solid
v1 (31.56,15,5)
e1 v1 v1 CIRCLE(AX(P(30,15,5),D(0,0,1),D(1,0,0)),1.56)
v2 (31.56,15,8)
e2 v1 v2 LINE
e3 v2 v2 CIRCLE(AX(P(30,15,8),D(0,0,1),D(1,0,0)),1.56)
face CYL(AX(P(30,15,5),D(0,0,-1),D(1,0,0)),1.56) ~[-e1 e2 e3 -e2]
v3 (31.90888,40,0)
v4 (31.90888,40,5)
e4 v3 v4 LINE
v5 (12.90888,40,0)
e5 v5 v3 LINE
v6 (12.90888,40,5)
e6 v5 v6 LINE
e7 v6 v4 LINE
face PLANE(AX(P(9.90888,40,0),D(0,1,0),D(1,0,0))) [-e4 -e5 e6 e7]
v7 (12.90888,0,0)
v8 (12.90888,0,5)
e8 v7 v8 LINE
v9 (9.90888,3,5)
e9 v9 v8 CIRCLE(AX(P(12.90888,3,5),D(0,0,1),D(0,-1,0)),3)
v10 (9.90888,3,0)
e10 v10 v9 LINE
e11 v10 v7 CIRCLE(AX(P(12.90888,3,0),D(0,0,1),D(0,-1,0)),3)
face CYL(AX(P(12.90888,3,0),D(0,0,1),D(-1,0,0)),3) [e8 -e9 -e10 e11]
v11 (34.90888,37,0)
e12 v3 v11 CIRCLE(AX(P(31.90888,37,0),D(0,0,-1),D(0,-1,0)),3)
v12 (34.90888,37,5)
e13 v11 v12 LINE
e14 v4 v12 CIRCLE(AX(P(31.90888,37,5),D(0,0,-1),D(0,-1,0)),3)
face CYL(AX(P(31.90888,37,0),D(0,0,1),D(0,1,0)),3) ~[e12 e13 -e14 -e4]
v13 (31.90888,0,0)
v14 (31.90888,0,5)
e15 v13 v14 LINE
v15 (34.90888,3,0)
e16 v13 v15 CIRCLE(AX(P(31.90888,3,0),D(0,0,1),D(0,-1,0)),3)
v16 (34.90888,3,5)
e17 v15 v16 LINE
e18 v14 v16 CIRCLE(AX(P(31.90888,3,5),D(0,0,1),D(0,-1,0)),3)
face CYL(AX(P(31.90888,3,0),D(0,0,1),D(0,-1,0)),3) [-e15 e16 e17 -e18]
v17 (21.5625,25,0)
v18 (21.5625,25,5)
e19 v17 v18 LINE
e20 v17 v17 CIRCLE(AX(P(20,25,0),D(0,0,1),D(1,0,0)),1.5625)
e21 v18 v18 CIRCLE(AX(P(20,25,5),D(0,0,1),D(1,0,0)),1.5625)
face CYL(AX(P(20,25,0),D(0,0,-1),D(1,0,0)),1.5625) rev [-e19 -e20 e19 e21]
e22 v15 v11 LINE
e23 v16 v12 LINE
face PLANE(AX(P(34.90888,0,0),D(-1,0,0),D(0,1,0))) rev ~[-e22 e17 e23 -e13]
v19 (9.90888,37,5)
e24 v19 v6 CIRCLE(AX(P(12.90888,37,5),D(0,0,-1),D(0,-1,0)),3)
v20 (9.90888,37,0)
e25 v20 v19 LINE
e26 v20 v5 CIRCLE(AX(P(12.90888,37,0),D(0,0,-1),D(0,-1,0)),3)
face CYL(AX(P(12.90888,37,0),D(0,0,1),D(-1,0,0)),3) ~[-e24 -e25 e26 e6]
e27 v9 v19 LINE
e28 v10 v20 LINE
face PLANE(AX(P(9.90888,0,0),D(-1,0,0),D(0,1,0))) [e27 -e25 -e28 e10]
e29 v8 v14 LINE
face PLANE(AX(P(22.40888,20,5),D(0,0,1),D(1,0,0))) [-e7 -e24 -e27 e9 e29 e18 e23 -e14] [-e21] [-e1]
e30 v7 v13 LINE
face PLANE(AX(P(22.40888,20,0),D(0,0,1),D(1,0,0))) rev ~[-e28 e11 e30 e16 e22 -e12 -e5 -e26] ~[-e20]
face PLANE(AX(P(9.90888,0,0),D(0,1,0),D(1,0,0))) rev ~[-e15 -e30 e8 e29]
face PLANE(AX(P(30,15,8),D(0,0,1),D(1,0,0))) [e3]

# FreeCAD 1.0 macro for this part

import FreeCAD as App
import Part
import Sketcher

V = App.Vector


def edges_at(feature, points):
    """Names of the edges that pass closest to the given points."""
    edges = feature.Shape.Edges
    near = lambda p: min(range(len(edges)), key=lambda i: edges[i].distToShape(Part.Vertex(*p))[0])
    return sorted({f"Edge{near(p) + 1}" for p in points})


def add_polygon(sketch, points):
    """Adds a closed chain of lines whose ends are joined by coincident constraints."""
    first, n = sketch.GeometryCount, len(points)
    for a, b in zip(points, points[1:] + points[:1]):
        sketch.addGeometry(Part.LineSegment(App.Vector(*a, 0), App.Vector(*b, 0)), False)
    for i in range(n):
        sketch.addConstraint(Sketcher.Constraint("Coincident", first + i, 2, first + (i + 1) % n, 1))

doc = App.newDocument("Part")
params = doc.addObject("Spreadsheet::Sheet", "Params")
for row, (alias, value) in enumerate([
    ("sketch1_width", "25 mm"),
    ("sketch1_height", "40 mm"),
    ("pad1_length", "5 mm"),
    ("fillet_radius", "3 mm"),
    ("sketch2_diameter", "3.12 mm"),
    ("pad2_length", "3 mm"),
], start=1):
    params.set(f"A{row}", alias)
    params.set(f"B{row}", "=" + value)
    params.setAlias(f"B{row}", alias)

body = doc.addObject("PartDesign::Body", "Body")

# Sketch on XY plane
sketch1 = body.newObject("Sketcher::SketchObject", "Sketch")
sketch1.AttachmentSupport = (doc.getObject("XY_Plane"), [""])
sketch1.MapMode = "FlatFace"
add_polygon(sketch1, [(9.9, 40), (9.9, 0), (34.9, 0), (34.9, 40)])  # lines 0-3
sketch1.addGeometry(Part.Circle(V(20, 25, 0), V(0, 0, 1), 1.6), False)  # 4
sketch1.addConstraint(Sketcher.Constraint("Vertical", 0))
sketch1.addConstraint(Sketcher.Constraint("Horizontal", 1))
sketch1.addConstraint(Sketcher.Constraint("Vertical", 2))
sketch1.addConstraint(Sketcher.Constraint("Horizontal", 3))
sketch1.addConstraint(Sketcher.Constraint("PointOnObject", 0, 2, -1))
sketch1.addConstraint(Sketcher.Constraint("DistanceX", 1, 1, 1, 2, 25.0))
sketch1.addConstraint(Sketcher.Constraint("DistanceY", 0, 2, 0, 1, 40.0))
sketch1.addConstraint(Sketcher.Constraint("Diameter", 4, 3.125))
sketch1.addConstraint(Sketcher.Constraint("DistanceX", -1, 1, 4, 3, 20.0))
sketch1.addConstraint(Sketcher.Constraint("DistanceY", -1, 1, 4, 3, 25.0))
sketch1.addConstraint(Sketcher.Constraint("DistanceX", -1, 1, 0, 2, 9.90888))
sketch1.setExpression("Constraints[9]", "Params.sketch1_width")
sketch1.setExpression("Constraints[10]", "Params.sketch1_height")
pad1 = body.newObject("PartDesign::Pad", "Pad")
pad1.Profile = sketch1
pad1.setExpression("Length", "Params.pad1_length")
doc.recompute()

fillet = body.newObject("PartDesign::Fillet", "Fillet")
fillet.Base = (pad1, edges_at(pad1, [
    (9.909, 0, 2.5),
    (34.909, 0, 2.5),
    (34.909, 40, 2.5),
    (9.909, 40, 2.5),
]))
fillet.setExpression("Radius", "Params.fillet_radius")

# Sketch on XY plane
sketch2 = body.newObject("Sketcher::SketchObject", "Sketch001")
sketch2.AttachmentSupport = (doc.getObject("XY_Plane"), [""])
sketch2.MapMode = "FlatFace"
sketch2.AttachmentOffset = App.Placement(V(0, 0, 5), App.Rotation())
sketch2.addGeometry(Part.Circle(V(30, 15, 0), V(0, 0, 1), 1.6), False)
sketch2.addConstraint(Sketcher.Constraint("Diameter", 0, 3.12))
sketch2.addConstraint(Sketcher.Constraint("DistanceX", -1, 1, 0, 3, 30.0))
sketch2.addConstraint(Sketcher.Constraint("DistanceY", -1, 1, 0, 3, 15.0))
sketch2.setExpression("Constraints[0]", "Params.sketch2_diameter")
pad2 = body.newObject("PartDesign::Pad", "Pad001")
pad2.Profile = sketch2
pad2.setExpression("Length", "Params.pad2_length")

doc.recompute()
